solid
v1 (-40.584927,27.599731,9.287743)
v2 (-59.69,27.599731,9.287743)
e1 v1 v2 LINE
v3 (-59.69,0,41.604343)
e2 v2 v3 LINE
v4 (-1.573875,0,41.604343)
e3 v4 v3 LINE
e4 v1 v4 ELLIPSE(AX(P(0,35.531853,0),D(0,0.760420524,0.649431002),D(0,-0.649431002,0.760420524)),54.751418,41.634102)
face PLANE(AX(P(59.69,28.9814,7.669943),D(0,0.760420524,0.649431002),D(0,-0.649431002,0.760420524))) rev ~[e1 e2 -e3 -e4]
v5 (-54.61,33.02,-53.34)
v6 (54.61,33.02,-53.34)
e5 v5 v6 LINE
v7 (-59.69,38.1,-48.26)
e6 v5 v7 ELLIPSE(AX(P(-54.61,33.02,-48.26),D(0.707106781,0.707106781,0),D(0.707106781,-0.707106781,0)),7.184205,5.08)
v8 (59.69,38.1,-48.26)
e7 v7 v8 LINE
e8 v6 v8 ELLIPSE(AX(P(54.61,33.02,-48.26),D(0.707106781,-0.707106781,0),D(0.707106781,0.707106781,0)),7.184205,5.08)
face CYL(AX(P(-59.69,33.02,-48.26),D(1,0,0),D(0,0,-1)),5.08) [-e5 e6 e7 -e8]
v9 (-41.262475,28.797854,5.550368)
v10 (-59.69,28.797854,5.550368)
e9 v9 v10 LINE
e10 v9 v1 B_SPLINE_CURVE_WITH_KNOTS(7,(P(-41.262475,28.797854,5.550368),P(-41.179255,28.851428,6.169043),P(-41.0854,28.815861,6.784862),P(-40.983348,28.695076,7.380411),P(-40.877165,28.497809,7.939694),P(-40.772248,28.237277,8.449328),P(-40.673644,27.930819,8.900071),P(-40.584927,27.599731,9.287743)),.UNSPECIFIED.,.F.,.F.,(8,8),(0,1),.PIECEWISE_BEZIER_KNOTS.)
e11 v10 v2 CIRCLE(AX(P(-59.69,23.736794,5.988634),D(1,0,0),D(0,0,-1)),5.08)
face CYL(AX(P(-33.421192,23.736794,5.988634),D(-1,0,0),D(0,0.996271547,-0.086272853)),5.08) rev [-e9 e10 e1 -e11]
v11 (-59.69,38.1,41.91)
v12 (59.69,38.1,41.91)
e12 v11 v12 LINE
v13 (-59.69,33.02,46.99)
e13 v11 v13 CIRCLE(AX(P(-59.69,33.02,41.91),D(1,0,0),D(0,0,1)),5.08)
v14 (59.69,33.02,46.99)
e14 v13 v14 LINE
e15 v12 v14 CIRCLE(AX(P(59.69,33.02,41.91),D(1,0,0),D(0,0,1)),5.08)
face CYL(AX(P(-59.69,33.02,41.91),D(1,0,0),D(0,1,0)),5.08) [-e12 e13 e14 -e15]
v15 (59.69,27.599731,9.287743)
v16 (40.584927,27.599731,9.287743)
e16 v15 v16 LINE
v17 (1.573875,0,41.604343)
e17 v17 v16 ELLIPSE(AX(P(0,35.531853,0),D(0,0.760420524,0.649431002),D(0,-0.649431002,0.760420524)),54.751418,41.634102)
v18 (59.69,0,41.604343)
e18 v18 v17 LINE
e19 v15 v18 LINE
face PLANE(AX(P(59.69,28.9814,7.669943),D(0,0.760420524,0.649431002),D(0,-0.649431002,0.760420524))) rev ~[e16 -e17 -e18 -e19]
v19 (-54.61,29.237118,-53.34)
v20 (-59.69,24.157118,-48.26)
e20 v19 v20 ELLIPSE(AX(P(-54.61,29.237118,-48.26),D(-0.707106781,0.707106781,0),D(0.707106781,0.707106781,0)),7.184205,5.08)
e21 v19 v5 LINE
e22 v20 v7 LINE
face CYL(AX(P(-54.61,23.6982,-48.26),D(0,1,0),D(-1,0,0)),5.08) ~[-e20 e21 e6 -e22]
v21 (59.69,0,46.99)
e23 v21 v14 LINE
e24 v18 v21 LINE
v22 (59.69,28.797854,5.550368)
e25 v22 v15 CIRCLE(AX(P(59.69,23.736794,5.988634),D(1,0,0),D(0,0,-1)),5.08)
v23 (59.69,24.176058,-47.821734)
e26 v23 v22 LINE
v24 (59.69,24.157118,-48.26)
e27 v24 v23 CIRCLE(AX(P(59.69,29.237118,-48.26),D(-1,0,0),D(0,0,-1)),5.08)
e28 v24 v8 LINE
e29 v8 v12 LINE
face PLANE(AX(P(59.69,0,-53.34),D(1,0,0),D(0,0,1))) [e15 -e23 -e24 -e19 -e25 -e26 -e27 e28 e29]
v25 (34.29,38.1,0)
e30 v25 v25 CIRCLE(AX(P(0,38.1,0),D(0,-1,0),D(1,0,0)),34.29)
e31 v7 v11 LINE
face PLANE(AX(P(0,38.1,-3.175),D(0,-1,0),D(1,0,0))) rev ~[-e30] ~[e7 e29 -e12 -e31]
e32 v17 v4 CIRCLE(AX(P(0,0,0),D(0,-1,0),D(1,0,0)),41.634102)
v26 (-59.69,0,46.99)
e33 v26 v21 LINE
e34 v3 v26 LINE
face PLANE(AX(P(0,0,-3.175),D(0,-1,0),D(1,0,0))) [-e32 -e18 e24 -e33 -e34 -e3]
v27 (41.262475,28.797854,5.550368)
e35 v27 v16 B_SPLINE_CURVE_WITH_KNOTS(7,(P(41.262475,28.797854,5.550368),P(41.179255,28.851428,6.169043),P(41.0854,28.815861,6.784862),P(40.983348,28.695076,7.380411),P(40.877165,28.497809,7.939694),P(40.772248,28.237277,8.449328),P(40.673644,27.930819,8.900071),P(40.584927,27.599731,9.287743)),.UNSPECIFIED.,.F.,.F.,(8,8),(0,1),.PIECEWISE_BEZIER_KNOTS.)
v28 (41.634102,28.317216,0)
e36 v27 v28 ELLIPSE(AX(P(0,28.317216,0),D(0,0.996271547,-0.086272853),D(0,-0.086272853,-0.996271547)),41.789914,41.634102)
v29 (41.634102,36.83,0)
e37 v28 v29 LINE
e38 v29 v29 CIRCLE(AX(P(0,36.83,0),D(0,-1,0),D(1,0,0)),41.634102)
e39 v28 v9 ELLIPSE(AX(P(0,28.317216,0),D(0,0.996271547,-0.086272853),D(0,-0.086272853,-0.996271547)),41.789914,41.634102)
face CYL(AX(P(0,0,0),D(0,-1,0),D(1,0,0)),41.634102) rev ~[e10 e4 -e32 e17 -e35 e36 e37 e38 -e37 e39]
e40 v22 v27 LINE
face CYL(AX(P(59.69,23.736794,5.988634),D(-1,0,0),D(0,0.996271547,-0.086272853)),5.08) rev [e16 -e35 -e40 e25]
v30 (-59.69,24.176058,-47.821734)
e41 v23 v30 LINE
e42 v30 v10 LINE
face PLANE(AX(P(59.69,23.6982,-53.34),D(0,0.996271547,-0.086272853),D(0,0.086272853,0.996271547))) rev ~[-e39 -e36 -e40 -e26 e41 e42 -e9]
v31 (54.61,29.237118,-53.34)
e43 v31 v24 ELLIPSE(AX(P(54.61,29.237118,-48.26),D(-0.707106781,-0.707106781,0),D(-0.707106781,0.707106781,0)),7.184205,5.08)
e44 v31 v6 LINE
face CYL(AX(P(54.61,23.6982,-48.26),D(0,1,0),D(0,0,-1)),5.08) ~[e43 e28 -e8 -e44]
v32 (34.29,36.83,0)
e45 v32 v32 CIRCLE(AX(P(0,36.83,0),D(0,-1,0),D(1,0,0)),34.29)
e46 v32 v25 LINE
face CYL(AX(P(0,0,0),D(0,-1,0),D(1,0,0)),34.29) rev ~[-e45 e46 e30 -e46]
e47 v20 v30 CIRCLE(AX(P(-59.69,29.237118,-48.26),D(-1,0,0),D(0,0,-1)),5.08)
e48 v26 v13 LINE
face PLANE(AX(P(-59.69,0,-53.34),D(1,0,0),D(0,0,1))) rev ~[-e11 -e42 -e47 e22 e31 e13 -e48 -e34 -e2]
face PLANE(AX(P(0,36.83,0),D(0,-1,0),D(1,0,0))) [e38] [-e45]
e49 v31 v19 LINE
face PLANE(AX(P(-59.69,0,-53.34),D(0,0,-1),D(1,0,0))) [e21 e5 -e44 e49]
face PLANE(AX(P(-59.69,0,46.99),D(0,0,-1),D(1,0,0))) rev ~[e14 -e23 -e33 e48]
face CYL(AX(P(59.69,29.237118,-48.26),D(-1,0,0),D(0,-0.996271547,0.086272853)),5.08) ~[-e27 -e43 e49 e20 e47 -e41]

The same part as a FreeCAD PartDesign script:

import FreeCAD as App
import Part
import Sketcher

V = App.Vector
Q = App.Units.Quantity


def edges_at(feature, points):
    """Names of the edges that pass closest to the given points."""
    edges = feature.Shape.Edges
    near = lambda p: min(range(len(edges)), key=lambda i: edges[i].distToShape(Part.Vertex(*p))[0])
    return sorted({f"Edge{near(p) + 1}" for p in points})


def add_polygon(sketch, points):
    """Adds a closed chain of lines whose ends are joined by coincident constraints."""
    first, n = sketch.GeometryCount, len(points)
    for a, b in zip(points, points[1:] + points[:1]):
        sketch.addGeometry(Part.LineSegment(App.Vector(*a, 0), App.Vector(*b, 0)), False)
    for i in range(n):
        sketch.addConstraint(Sketcher.Constraint("Coincident", first + i, 2, first + (i + 1) % n, 1))

doc = App.newDocument("Part")
params = doc.addObject("Spreadsheet::Sheet", "Params")
for row, (alias, value) in enumerate([
    ("sketch1_diameter", "2.7 in"),
    ("sketch1_width", "4.7 in"),
    ("sketch1_height", "3.95 in"),
    ("pad1_length", "1.5 in"),
    ("sketch2_width", "0.933 in"),
    ("fillet_radius", "0.2 in"),
    ("fillet2_radius", "0.2 in"),
    ("fillet3_radius", "0.2 in"),
    ("pocket2_length", "1.45 in"),
], start=1):
    params.set(f"A{row}", alias)
    params.set(f"B{row}", "=" + value)
    params.setAlias(f"B{row}", alias)

body = doc.addObject("PartDesign::Body", "Body")

sketch1 = doc.addObject("Sketcher::SketchObject", "Sketch")
body.addObject(sketch1)
sketch1.AttachmentSupport = (doc.XZ_Plane, [""])
sketch1.MapMode = "FlatFace"
add_polygon(sketch1, [(-59.69, 46.99), (-59.69, -53.34), (59.69, -53.34), (59.69, 46.99)])
sketch1.addGeometry(Part.Circle(V(0, 0, 0), V(0, 0, 1), 34.29), False)
sketch1.addConstraint([
    Sketcher.Constraint("Vertical", 0),
    Sketcher.Constraint("Horizontal", 1),
    Sketcher.Constraint("Vertical", 2),
    Sketcher.Constraint("Horizontal", 3),
    Sketcher.Constraint("Coincident", 4, 3, -1, 1),
    Sketcher.Constraint("Diameter", 4, Q("2.7 in")),
    Sketcher.Constraint("DistanceX", 1, 1, 1, 2, Q("4.7 in")),
    Sketcher.Constraint("DistanceY", 0, 2, 0, 1, Q("3.95 in")),
    Sketcher.Constraint("DistanceY", 0, 2, -1, 1, Q("2.1 in")),
    Sketcher.Constraint("DistanceX", 0, 2, -1, 1, Q("2.35 in")),
])
sketch1.setExpression("Constraints[9]", "Params.sketch1_diameter")
sketch1.setExpression("Constraints[10]", "Params.sketch1_width")
sketch1.setExpression("Constraints[11]", "Params.sketch1_height")
pad1 = doc.addObject("PartDesign::Pad", "Pad")
body.addObject(pad1)
pad1.Profile = sketch1
pad1.setExpression("Length", "Params.pad1_length")
pad1.Reversed = True

sketch2 = doc.addObject("Sketcher::SketchObject", "Sketch001")
body.addObject(sketch2)
sketch2.AttachmentSupport = (doc.YZ_Plane, [""])
sketch2.MapMode = "FlatFace"
sketch2.AttachmentOffset = App.Placement(V(0, 0, 2.35 * 25.4), App.Rotation())
add_polygon(sketch2, [(28.9814, 7.669943), (0, 41.604343), (0, -53.34), (23.6982, -53.34)])
sketch2.addConstraint([
    Sketcher.Constraint("Vertical", 1),
    Sketcher.Constraint("Horizontal", 2),
    Sketcher.Constraint("PointOnObject", 0, 2, -2),
    Sketcher.Constraint("DistanceY", 1, 2, -1, 1, Q("2.1 in")),
    Sketcher.Constraint("DistanceX", 2, 1, 2, 2, Q("0.933 in")),
    Sketcher.Constraint("DistanceX", -1, 1, 3, 2, Q("1.141 in")),
    Sketcher.Constraint("DistanceY", 3, 2, 0, 2, Q("1.336 in")),
    Sketcher.Constraint("DistanceY", 1, 2, 1, 1, Q("94.944343 mm")),
])
sketch2.setExpression("Constraints[8]", "Params.sketch2_width")
pocket1 = doc.addObject("PartDesign::Pocket", "Pocket")
body.addObject(pocket1)
pocket1.Profile = sketch2
pocket1.Type = "ThroughAll"
doc.recompute()

fillet = doc.addObject("PartDesign::Fillet", "Fillet")
body.addObject(fillet)
fillet.Base = (pocket1, edges_at(pocket1, [(46.556, 28.981, 7.67), (-46.556, 28.981, 7.67)]))
fillet.setExpression("Radius", "Params.fillet_radius")
doc.recompute()

fillet2 = doc.addObject("PartDesign::Fillet", "Fillet001")
body.addObject(fillet2)
fillet2.Base = (fillet, edges_at(fillet, [
    (0, 38.1, -53.34),
    (0, 23.698, -53.34),
    (59.69, 30.899, -53.34),
    (-59.69, 30.899, -53.34),
]))
fillet2.setExpression("Radius", "Params.fillet2_radius")
doc.recompute()

fillet3 = doc.addObject("PartDesign::Fillet", "Fillet002")
body.addObject(fillet3)
fillet3.Base = (fillet2, edges_at(fillet2, [(0, 38.1, 46.99)]))
fillet3.setExpression("Radius", "Params.fillet3_radius")

sketch3 = doc.addObject("Sketcher::SketchObject", "Sketch002")
body.addObject(sketch3)
sketch3.AttachmentSupport = (doc.XZ_Plane, [""])
sketch3.MapMode = "FlatFace"
sketch3.addGeometry(Part.Circle(V(0, 0, 0), V(0, 0, 1), 41.634102), False)
sketch3.addConstraint([
    Sketcher.Constraint("Coincident", 0, 3, -1, 1),
    Sketcher.Constraint("Diameter", 0, Q("83.268204 mm")),
])
pocket2 = doc.addObject("PartDesign::Pocket", "Pocket001")
body.addObject(pocket2)
pocket2.Profile = sketch3
pocket2.setExpression("Length", "Params.pocket2_length")

doc.recompute()
